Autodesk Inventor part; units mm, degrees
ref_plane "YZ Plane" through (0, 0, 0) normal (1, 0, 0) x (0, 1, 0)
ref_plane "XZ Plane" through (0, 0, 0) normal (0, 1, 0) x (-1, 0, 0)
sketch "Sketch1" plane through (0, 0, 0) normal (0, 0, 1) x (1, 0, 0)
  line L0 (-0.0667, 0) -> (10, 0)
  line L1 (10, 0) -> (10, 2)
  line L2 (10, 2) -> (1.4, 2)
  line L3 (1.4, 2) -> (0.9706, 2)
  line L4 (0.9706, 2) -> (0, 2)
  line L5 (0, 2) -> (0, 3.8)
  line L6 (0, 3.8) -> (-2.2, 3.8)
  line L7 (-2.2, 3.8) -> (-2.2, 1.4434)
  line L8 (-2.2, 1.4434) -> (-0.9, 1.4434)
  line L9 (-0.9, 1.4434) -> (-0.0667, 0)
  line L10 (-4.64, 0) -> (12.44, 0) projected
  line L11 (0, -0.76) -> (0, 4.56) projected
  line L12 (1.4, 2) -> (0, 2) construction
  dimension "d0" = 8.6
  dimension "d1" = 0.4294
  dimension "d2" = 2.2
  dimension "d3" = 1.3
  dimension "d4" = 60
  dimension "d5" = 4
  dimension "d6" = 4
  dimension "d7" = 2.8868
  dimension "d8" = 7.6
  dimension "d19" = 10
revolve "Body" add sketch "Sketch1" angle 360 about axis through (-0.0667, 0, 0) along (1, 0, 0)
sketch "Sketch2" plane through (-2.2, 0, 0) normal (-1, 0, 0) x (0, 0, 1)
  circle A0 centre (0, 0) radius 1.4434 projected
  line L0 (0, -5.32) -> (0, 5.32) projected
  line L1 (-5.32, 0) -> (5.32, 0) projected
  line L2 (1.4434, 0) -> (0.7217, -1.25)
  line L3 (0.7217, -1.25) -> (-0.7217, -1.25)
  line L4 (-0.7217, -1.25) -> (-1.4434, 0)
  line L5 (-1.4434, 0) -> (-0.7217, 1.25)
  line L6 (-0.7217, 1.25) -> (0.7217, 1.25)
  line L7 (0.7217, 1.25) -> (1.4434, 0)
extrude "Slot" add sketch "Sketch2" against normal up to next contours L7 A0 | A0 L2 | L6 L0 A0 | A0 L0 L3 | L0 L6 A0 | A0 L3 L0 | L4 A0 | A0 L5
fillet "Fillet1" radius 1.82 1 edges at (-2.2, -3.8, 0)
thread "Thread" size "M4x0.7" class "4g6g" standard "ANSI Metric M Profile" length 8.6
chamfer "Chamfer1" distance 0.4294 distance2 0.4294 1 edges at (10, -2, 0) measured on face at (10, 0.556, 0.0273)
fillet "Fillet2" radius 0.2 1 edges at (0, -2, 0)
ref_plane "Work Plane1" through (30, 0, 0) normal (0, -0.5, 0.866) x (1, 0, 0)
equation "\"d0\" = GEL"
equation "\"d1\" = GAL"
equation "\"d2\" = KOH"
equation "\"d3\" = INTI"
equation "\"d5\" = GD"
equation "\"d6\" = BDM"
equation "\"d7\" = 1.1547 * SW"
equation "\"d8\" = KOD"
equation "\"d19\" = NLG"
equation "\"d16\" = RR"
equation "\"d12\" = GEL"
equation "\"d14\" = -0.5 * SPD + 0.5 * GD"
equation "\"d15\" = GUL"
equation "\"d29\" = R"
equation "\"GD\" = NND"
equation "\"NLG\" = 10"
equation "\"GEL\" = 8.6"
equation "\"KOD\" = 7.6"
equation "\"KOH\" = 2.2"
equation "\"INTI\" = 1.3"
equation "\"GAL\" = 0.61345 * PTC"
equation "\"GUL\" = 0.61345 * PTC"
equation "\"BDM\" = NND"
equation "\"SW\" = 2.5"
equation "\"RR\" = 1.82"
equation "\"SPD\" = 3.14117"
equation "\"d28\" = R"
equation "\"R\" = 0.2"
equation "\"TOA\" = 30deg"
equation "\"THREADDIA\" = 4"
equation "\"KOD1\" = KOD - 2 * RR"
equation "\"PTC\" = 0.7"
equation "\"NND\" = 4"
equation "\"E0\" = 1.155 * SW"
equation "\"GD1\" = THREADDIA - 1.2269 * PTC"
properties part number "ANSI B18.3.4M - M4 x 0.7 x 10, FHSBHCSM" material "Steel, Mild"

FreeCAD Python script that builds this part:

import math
import FreeCAD as App
import Part
import Sketcher

V = App.Vector
Q = App.Units.Quantity


def edges_at(feature, points):
    """Names of the edges that pass closest to the given points."""
    edges = feature.Shape.Edges
    near = lambda p: min(range(len(edges)), key=lambda i: edges[i].distToShape(Part.Vertex(*p))[0])
    return sorted({f"Edge{near(p) + 1}" for p in points})

doc = App.newDocument("Part")
params = doc.addObject("Spreadsheet::Sheet", "Params")
for row, (alias, value) in enumerate([
    ("sketch1_width", "10 mm"),
    ("sketch1_width2", "2.2 mm"),
    ("sketch1_width3", "1.3 mm"),
    ("sketch1_height", "2 mm"),
    ("sketch1_height2", "1.8 mm"),
    ("revolution_angle", "360 deg"),
    ("fillet_radius", "1.82 mm"),
    ("chamfer_size", "0.4294 mm"),
    ("chamfer_size2", "0.4294 mm"),
    ("fillet2_radius", "0.2 mm"),
], start=1):
    params.set(f"A{row}", alias)
    params.set(f"B{row}", "=" + value)
    params.setAlias(f"B{row}", alias)

body = doc.addObject("PartDesign::Body", "Body")

# Sketch on XY plane
sketch1 = doc.addObject("Sketcher::SketchObject", "Sketch")
body.addObject(sketch1)
sketch1.AttachmentSupport = (doc.XY_Plane, [""])
sketch1.MapMode = "FlatFace"
sketch1.addGeometry([
    Part.LineSegment(V(-0.9, 1.4, 0), V(-0.1, 0, 0)),  # 0
    Part.LineSegment(V(-0.1, 0, 0), V(10, 0, 0)),  # 1
    Part.LineSegment(V(10, 0, 0), V(10, 2, 0)),  # 2
    Part.LineSegment(V(10, 2, 0), V(0, 2, 0)),  # 3
    Part.LineSegment(V(0, 2, 0), V(0, 3.8, 0)),  # 4
    Part.LineSegment(V(0, 3.8, 0), V(-2.2, 3.8, 0)),  # 5
    Part.LineSegment(V(-2.2, 3.8, 0), V(-2.2, 1.4, 0)),  # 6
    Part.LineSegment(V(-2.2, 1.4, 0), V(-0.9, 1.4, 0)),  # 7
], False)
sketch1.addConstraint([
    Sketcher.Constraint("Coincident", 0, 2, 1, 1),
    Sketcher.Constraint("Coincident", 1, 2, 2, 1),
    Sketcher.Constraint("Coincident", 2, 2, 3, 1),
    Sketcher.Constraint("Coincident", 3, 2, 4, 1),
    Sketcher.Constraint("Coincident", 4, 2, 5, 1),
    Sketcher.Constraint("Coincident", 5, 2, 6, 1),
    Sketcher.Constraint("Coincident", 6, 2, 7, 1),
    Sketcher.Constraint("Coincident", 7, 2, 0, 1),
    Sketcher.Constraint("Horizontal", 1),
    Sketcher.Constraint("Vertical", 2),
    Sketcher.Constraint("Horizontal", 3),
    Sketcher.Constraint("Vertical", 4),
    Sketcher.Constraint("Horizontal", 5),
    Sketcher.Constraint("Vertical", 6),
    Sketcher.Constraint("Horizontal", 7),
    Sketcher.Constraint("PointOnObject", 0, 2, -1),
    Sketcher.Constraint("PointOnObject", 3, 2, -2),
    Sketcher.Constraint("DistanceX", 3, 2, 3, 1, Q("10 mm")),
    Sketcher.Constraint("DistanceX", 5, 2, 5, 1, Q("2.2 mm")),
    Sketcher.Constraint("DistanceX", 7, 1, 7, 2, Q("1.3 mm")),
    Sketcher.Constraint("DistanceY", 2, 1, 2, 2, Q("2 mm")),
    Sketcher.Constraint("DistanceY", 4, 1, 4, 2, Q("1.8 mm")),
    Sketcher.Constraint("DistanceX", 1, 1, 1, 2, Q("10.0667 mm")),
    Sketcher.Constraint("DistanceY", 6, 2, 6, 1, Q("2.3566 mm")),
])
sketch1.setExpression("Constraints[17]", "Params.sketch1_width")
sketch1.setExpression("Constraints[18]", "Params.sketch1_width2")
sketch1.setExpression("Constraints[19]", "Params.sketch1_width3")
sketch1.setExpression("Constraints[20]", "Params.sketch1_height")
sketch1.setExpression("Constraints[21]", "Params.sketch1_height2")
revolution = doc.addObject("PartDesign::Revolution", "Revolution")
body.addObject(revolution)
revolution.Profile = sketch1
revolution.ReferenceAxis = (sketch1, ["H_Axis"])
revolution.setExpression("Angle", "Params.revolution_angle")

# Sketch on YZ plane
sketch2 = doc.addObject("Sketcher::SketchObject", "Sketch001")
body.addObject(sketch2)
sketch2.AttachmentSupport = (doc.YZ_Plane, [""])
sketch2.MapMode = "FlatFace"
sketch2.AttachmentOffset = App.Placement(V(0, 0, -2.2), App.Rotation())
sketch2.addGeometry([
    Part.LineSegment(V(1.2, 0.7, 0), V(0, 1.4, 0)),  # 0
    Part.ArcOfCircle(Part.Circle(V(0, 0, 0), V(0, 0, 1), 1.4), math.radians(30), math.radians(90)),  # 1
    Part.ArcOfCircle(Part.Circle(V(0, 0, 0), V(0, 0, 1), 1.4), math.radians(90), math.radians(150)),  # 2
    Part.LineSegment(V(0, 1.4, 0), V(-1.2, 0.7, 0)),  # 3
    Part.ArcOfCircle(Part.Circle(V(0, 0, 0), V(0, 0, 1), 1.4), math.radians(-30), math.radians(30)),  # 4
    Part.LineSegment(V(1.2, 0.7, 0), V(1.2, -0.7, 0)),  # 5
    Part.LineSegment(V(-1.2, 0.7, 0), V(-1.2, -0.7, 0)),  # 6
    Part.ArcOfCircle(Part.Circle(V(0, 0, 0), V(0, 0, 1), 1.4), math.radians(150), math.radians(210)),  # 7
    Part.LineSegment(V(-1.2, -0.7, 0), V(0, -1.4, 0)),  # 8
    Part.ArcOfCircle(Part.Circle(V(0, 0, 0), V(0, 0, 1), 1.4), math.radians(-150), math.radians(-90)),  # 9
    Part.ArcOfCircle(Part.Circle(V(0, 0, 0), V(0, 0, 1), 1.4), math.radians(-90), math.radians(-30)),  # 10
    Part.LineSegment(V(0, -1.4, 0), V(1.2, -0.7, 0)),  # 11
], False)
sketch2.addConstraint([
    Sketcher.Constraint("Coincident", 0, 1, 1, 1),
    Sketcher.Constraint("Coincident", 1, 2, 0, 2),
    Sketcher.Constraint("Coincident", 2, 1, 3, 1),
    Sketcher.Constraint("Coincident", 3, 2, 2, 2),
    Sketcher.Constraint("Coincident", 4, 1, 5, 2),
    Sketcher.Constraint("Coincident", 5, 1, 4, 2),
    Sketcher.Constraint("Coincident", 6, 1, 7, 1),
    Sketcher.Constraint("Coincident", 7, 2, 6, 2),
    Sketcher.Constraint("Coincident", 8, 1, 9, 1),
    Sketcher.Constraint("Coincident", 9, 2, 8, 2),
    Sketcher.Constraint("Coincident", 10, 1, 11, 1),
    Sketcher.Constraint("Coincident", 11, 2, 10, 2),
    Sketcher.Constraint("Vertical", 5),
    Sketcher.Constraint("Vertical", 6),
    Sketcher.Constraint("Coincident", 1, 3, -1, 1),
    Sketcher.Constraint("Coincident", 2, 3, -1, 1),
    Sketcher.Constraint("Coincident", 4, 3, -1, 1),
    Sketcher.Constraint("Coincident", 7, 3, -1, 1),
    Sketcher.Constraint("Coincident", 9, 3, -1, 1),
    Sketcher.Constraint("Coincident", 10, 3, -1, 1),
    Sketcher.Constraint("Coincident", 2, 1, 1, 2),
    Sketcher.Constraint("Coincident", 5, 1, 0, 1),
    Sketcher.Constraint("Coincident", 6, 1, 3, 2),
    Sketcher.Constraint("Coincident", 8, 1, 7, 2),
    Sketcher.Constraint("Coincident", 10, 1, 9, 2),
    Sketcher.Constraint("PointOnObject", 1, 2, -2),
    Sketcher.Constraint("PointOnObject", 9, 2, -2),
    Sketcher.Constraint("Parallel", 0, 8),
    Sketcher.Constraint("Parallel", 3, 11),
    Sketcher.Constraint("Angle", 0, Q("149.9996 deg")),
    Sketcher.Constraint("Radius", 1, Q("1.4434 mm")),
])
pad1 = doc.addObject("PartDesign::Pad", "Pad")
body.addObject(pad1)
pad1.Profile = sketch2
pad1.Type = "UpToFirst"
doc.recompute()

fillet = doc.addObject("PartDesign::Fillet", "Fillet")
body.addObject(fillet)
fillet.Base = (pad1, edges_at(pad1, [(-2.2, -3.8, 0)]))
fillet.setExpression("Radius", "Params.fillet_radius")
doc.recompute()

chamfer = doc.addObject("PartDesign::Chamfer", "Chamfer")
body.addObject(chamfer)
chamfer.Base = (fillet, edges_at(fillet, [(10, -2, 0)]))
chamfer.ChamferType = "Two distances"
chamfer.setExpression("Size", "Params.chamfer_size")
chamfer.setExpression("Size2", "Params.chamfer_size2")
doc.recompute()

fillet2 = doc.addObject("PartDesign::Fillet", "Fillet001")
body.addObject(fillet2)
fillet2.Base = (chamfer, edges_at(chamfer, [(0, -2, 0)]))
fillet2.setExpression("Radius", "Params.fillet2_radius")

doc.recompute()
